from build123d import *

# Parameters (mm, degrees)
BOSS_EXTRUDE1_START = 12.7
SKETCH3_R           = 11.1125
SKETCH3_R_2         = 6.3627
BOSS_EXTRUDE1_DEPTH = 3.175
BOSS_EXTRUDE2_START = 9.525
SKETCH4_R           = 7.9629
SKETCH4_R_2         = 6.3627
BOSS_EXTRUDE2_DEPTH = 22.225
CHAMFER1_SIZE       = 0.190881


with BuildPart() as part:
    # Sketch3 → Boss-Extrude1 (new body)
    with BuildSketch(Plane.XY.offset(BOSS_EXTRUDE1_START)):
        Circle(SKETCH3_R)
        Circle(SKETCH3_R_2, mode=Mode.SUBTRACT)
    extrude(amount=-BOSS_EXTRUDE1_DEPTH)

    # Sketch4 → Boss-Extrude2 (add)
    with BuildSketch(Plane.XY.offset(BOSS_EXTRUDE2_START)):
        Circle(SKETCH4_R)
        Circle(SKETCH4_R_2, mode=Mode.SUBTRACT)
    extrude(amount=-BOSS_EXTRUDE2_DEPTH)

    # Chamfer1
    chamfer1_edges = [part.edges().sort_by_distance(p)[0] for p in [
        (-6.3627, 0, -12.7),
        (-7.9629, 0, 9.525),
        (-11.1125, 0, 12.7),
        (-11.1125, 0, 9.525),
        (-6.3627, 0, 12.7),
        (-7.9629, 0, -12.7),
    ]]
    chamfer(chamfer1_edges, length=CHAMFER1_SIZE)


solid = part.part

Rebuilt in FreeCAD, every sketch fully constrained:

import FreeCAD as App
import Part
import Sketcher
Q = App.Units.Quantity


def edges_at(feature, points):
    """Names of the edges that pass closest to the given points."""
    edges = feature.Shape.Edges
    near = lambda p: min(range(len(edges)), key=lambda i: edges[i].distToShape(Part.Vertex(*p))[0])
    return sorted({f"Edge{near(p) + 1}" for p in points})

doc = App.newDocument("Part")
body = doc.addObject("PartDesign::Body", "Body")

sketch1 = doc.addObject("Sketcher::SketchObject", "Sketch")
body.addObject(sketch1)
sketch1.AttachmentSupport = (doc.XY_Plane, [""])
sketch1.MapMode = "FlatFace"
sketch1.AttachmentOffset = App.Placement(App.Vector(0, 0, 0.5 * 25.4), App.Rotation())
sketch1.addGeometry(Part.Circle(App.Vector(0, 0, 0), App.Vector(0, 0, 1), 11), False)
sketch1.addGeometry(Part.Circle(App.Vector(0, 0, 0), App.Vector(0, 0, 1), 6), False)
sketch1.addConstraint(Sketcher.Constraint("Coincident", 0, 3, -1, 1))
sketch1.addConstraint(Sketcher.Constraint("Coincident", 1, 3, -1, 1))
sketch1.addConstraint(Sketcher.Constraint("Diameter", 0, Q("0.875 in")))
sketch1.addConstraint(Sketcher.Constraint("Diameter", 1, Q("0.501 in")))
pad1 = doc.addObject("PartDesign::Pad", "Pad")
body.addObject(pad1)
pad1.Profile = sketch1
pad1.Length = Q("0.125 in")
pad1.Reversed = True

sketch2 = doc.addObject("Sketcher::SketchObject", "Sketch001")
body.addObject(sketch2)
sketch2.AttachmentSupport = (doc.XY_Plane, [""])
sketch2.MapMode = "FlatFace"
sketch2.AttachmentOffset = App.Placement(App.Vector(0, 0, 0.375 * 25.4), App.Rotation())
sketch2.addGeometry(Part.Circle(App.Vector(0, 0, 0), App.Vector(0, 0, 1), 8), False)
sketch2.addGeometry(Part.Circle(App.Vector(0, 0, 0), App.Vector(0, 0, 1), 6), False)
sketch2.addConstraint(Sketcher.Constraint("Coincident", 0, 3, -1, 1))
sketch2.addConstraint(Sketcher.Constraint("Coincident", 1, 3, -1, 1))
sketch2.addConstraint(Sketcher.Constraint("Diameter", 0, Q("0.627 in")))
sketch2.addConstraint(Sketcher.Constraint("Diameter", 1, Q("0.501 in")))
pad2 = doc.addObject("PartDesign::Pad", "Pad001")
body.addObject(pad2)
pad2.Profile = sketch2
pad2.Length = Q("0.875 in")
pad2.Reversed = True
doc.recompute()

chamfer = doc.addObject("PartDesign::Chamfer", "Chamfer")
body.addObject(chamfer)
chamfer.Base = (pad2, edges_at(pad2, [
    (-6.363, 0, -12.7),
    (-7.963, 0, 9.525),
    (-11.113, 0, 12.7),
    (-11.113, 0, 9.525),
    (-6.363, 0, 12.7),
    (-7.963, 0, -12.7),
]))
chamfer.Size = 0.190881

doc.recompute()
